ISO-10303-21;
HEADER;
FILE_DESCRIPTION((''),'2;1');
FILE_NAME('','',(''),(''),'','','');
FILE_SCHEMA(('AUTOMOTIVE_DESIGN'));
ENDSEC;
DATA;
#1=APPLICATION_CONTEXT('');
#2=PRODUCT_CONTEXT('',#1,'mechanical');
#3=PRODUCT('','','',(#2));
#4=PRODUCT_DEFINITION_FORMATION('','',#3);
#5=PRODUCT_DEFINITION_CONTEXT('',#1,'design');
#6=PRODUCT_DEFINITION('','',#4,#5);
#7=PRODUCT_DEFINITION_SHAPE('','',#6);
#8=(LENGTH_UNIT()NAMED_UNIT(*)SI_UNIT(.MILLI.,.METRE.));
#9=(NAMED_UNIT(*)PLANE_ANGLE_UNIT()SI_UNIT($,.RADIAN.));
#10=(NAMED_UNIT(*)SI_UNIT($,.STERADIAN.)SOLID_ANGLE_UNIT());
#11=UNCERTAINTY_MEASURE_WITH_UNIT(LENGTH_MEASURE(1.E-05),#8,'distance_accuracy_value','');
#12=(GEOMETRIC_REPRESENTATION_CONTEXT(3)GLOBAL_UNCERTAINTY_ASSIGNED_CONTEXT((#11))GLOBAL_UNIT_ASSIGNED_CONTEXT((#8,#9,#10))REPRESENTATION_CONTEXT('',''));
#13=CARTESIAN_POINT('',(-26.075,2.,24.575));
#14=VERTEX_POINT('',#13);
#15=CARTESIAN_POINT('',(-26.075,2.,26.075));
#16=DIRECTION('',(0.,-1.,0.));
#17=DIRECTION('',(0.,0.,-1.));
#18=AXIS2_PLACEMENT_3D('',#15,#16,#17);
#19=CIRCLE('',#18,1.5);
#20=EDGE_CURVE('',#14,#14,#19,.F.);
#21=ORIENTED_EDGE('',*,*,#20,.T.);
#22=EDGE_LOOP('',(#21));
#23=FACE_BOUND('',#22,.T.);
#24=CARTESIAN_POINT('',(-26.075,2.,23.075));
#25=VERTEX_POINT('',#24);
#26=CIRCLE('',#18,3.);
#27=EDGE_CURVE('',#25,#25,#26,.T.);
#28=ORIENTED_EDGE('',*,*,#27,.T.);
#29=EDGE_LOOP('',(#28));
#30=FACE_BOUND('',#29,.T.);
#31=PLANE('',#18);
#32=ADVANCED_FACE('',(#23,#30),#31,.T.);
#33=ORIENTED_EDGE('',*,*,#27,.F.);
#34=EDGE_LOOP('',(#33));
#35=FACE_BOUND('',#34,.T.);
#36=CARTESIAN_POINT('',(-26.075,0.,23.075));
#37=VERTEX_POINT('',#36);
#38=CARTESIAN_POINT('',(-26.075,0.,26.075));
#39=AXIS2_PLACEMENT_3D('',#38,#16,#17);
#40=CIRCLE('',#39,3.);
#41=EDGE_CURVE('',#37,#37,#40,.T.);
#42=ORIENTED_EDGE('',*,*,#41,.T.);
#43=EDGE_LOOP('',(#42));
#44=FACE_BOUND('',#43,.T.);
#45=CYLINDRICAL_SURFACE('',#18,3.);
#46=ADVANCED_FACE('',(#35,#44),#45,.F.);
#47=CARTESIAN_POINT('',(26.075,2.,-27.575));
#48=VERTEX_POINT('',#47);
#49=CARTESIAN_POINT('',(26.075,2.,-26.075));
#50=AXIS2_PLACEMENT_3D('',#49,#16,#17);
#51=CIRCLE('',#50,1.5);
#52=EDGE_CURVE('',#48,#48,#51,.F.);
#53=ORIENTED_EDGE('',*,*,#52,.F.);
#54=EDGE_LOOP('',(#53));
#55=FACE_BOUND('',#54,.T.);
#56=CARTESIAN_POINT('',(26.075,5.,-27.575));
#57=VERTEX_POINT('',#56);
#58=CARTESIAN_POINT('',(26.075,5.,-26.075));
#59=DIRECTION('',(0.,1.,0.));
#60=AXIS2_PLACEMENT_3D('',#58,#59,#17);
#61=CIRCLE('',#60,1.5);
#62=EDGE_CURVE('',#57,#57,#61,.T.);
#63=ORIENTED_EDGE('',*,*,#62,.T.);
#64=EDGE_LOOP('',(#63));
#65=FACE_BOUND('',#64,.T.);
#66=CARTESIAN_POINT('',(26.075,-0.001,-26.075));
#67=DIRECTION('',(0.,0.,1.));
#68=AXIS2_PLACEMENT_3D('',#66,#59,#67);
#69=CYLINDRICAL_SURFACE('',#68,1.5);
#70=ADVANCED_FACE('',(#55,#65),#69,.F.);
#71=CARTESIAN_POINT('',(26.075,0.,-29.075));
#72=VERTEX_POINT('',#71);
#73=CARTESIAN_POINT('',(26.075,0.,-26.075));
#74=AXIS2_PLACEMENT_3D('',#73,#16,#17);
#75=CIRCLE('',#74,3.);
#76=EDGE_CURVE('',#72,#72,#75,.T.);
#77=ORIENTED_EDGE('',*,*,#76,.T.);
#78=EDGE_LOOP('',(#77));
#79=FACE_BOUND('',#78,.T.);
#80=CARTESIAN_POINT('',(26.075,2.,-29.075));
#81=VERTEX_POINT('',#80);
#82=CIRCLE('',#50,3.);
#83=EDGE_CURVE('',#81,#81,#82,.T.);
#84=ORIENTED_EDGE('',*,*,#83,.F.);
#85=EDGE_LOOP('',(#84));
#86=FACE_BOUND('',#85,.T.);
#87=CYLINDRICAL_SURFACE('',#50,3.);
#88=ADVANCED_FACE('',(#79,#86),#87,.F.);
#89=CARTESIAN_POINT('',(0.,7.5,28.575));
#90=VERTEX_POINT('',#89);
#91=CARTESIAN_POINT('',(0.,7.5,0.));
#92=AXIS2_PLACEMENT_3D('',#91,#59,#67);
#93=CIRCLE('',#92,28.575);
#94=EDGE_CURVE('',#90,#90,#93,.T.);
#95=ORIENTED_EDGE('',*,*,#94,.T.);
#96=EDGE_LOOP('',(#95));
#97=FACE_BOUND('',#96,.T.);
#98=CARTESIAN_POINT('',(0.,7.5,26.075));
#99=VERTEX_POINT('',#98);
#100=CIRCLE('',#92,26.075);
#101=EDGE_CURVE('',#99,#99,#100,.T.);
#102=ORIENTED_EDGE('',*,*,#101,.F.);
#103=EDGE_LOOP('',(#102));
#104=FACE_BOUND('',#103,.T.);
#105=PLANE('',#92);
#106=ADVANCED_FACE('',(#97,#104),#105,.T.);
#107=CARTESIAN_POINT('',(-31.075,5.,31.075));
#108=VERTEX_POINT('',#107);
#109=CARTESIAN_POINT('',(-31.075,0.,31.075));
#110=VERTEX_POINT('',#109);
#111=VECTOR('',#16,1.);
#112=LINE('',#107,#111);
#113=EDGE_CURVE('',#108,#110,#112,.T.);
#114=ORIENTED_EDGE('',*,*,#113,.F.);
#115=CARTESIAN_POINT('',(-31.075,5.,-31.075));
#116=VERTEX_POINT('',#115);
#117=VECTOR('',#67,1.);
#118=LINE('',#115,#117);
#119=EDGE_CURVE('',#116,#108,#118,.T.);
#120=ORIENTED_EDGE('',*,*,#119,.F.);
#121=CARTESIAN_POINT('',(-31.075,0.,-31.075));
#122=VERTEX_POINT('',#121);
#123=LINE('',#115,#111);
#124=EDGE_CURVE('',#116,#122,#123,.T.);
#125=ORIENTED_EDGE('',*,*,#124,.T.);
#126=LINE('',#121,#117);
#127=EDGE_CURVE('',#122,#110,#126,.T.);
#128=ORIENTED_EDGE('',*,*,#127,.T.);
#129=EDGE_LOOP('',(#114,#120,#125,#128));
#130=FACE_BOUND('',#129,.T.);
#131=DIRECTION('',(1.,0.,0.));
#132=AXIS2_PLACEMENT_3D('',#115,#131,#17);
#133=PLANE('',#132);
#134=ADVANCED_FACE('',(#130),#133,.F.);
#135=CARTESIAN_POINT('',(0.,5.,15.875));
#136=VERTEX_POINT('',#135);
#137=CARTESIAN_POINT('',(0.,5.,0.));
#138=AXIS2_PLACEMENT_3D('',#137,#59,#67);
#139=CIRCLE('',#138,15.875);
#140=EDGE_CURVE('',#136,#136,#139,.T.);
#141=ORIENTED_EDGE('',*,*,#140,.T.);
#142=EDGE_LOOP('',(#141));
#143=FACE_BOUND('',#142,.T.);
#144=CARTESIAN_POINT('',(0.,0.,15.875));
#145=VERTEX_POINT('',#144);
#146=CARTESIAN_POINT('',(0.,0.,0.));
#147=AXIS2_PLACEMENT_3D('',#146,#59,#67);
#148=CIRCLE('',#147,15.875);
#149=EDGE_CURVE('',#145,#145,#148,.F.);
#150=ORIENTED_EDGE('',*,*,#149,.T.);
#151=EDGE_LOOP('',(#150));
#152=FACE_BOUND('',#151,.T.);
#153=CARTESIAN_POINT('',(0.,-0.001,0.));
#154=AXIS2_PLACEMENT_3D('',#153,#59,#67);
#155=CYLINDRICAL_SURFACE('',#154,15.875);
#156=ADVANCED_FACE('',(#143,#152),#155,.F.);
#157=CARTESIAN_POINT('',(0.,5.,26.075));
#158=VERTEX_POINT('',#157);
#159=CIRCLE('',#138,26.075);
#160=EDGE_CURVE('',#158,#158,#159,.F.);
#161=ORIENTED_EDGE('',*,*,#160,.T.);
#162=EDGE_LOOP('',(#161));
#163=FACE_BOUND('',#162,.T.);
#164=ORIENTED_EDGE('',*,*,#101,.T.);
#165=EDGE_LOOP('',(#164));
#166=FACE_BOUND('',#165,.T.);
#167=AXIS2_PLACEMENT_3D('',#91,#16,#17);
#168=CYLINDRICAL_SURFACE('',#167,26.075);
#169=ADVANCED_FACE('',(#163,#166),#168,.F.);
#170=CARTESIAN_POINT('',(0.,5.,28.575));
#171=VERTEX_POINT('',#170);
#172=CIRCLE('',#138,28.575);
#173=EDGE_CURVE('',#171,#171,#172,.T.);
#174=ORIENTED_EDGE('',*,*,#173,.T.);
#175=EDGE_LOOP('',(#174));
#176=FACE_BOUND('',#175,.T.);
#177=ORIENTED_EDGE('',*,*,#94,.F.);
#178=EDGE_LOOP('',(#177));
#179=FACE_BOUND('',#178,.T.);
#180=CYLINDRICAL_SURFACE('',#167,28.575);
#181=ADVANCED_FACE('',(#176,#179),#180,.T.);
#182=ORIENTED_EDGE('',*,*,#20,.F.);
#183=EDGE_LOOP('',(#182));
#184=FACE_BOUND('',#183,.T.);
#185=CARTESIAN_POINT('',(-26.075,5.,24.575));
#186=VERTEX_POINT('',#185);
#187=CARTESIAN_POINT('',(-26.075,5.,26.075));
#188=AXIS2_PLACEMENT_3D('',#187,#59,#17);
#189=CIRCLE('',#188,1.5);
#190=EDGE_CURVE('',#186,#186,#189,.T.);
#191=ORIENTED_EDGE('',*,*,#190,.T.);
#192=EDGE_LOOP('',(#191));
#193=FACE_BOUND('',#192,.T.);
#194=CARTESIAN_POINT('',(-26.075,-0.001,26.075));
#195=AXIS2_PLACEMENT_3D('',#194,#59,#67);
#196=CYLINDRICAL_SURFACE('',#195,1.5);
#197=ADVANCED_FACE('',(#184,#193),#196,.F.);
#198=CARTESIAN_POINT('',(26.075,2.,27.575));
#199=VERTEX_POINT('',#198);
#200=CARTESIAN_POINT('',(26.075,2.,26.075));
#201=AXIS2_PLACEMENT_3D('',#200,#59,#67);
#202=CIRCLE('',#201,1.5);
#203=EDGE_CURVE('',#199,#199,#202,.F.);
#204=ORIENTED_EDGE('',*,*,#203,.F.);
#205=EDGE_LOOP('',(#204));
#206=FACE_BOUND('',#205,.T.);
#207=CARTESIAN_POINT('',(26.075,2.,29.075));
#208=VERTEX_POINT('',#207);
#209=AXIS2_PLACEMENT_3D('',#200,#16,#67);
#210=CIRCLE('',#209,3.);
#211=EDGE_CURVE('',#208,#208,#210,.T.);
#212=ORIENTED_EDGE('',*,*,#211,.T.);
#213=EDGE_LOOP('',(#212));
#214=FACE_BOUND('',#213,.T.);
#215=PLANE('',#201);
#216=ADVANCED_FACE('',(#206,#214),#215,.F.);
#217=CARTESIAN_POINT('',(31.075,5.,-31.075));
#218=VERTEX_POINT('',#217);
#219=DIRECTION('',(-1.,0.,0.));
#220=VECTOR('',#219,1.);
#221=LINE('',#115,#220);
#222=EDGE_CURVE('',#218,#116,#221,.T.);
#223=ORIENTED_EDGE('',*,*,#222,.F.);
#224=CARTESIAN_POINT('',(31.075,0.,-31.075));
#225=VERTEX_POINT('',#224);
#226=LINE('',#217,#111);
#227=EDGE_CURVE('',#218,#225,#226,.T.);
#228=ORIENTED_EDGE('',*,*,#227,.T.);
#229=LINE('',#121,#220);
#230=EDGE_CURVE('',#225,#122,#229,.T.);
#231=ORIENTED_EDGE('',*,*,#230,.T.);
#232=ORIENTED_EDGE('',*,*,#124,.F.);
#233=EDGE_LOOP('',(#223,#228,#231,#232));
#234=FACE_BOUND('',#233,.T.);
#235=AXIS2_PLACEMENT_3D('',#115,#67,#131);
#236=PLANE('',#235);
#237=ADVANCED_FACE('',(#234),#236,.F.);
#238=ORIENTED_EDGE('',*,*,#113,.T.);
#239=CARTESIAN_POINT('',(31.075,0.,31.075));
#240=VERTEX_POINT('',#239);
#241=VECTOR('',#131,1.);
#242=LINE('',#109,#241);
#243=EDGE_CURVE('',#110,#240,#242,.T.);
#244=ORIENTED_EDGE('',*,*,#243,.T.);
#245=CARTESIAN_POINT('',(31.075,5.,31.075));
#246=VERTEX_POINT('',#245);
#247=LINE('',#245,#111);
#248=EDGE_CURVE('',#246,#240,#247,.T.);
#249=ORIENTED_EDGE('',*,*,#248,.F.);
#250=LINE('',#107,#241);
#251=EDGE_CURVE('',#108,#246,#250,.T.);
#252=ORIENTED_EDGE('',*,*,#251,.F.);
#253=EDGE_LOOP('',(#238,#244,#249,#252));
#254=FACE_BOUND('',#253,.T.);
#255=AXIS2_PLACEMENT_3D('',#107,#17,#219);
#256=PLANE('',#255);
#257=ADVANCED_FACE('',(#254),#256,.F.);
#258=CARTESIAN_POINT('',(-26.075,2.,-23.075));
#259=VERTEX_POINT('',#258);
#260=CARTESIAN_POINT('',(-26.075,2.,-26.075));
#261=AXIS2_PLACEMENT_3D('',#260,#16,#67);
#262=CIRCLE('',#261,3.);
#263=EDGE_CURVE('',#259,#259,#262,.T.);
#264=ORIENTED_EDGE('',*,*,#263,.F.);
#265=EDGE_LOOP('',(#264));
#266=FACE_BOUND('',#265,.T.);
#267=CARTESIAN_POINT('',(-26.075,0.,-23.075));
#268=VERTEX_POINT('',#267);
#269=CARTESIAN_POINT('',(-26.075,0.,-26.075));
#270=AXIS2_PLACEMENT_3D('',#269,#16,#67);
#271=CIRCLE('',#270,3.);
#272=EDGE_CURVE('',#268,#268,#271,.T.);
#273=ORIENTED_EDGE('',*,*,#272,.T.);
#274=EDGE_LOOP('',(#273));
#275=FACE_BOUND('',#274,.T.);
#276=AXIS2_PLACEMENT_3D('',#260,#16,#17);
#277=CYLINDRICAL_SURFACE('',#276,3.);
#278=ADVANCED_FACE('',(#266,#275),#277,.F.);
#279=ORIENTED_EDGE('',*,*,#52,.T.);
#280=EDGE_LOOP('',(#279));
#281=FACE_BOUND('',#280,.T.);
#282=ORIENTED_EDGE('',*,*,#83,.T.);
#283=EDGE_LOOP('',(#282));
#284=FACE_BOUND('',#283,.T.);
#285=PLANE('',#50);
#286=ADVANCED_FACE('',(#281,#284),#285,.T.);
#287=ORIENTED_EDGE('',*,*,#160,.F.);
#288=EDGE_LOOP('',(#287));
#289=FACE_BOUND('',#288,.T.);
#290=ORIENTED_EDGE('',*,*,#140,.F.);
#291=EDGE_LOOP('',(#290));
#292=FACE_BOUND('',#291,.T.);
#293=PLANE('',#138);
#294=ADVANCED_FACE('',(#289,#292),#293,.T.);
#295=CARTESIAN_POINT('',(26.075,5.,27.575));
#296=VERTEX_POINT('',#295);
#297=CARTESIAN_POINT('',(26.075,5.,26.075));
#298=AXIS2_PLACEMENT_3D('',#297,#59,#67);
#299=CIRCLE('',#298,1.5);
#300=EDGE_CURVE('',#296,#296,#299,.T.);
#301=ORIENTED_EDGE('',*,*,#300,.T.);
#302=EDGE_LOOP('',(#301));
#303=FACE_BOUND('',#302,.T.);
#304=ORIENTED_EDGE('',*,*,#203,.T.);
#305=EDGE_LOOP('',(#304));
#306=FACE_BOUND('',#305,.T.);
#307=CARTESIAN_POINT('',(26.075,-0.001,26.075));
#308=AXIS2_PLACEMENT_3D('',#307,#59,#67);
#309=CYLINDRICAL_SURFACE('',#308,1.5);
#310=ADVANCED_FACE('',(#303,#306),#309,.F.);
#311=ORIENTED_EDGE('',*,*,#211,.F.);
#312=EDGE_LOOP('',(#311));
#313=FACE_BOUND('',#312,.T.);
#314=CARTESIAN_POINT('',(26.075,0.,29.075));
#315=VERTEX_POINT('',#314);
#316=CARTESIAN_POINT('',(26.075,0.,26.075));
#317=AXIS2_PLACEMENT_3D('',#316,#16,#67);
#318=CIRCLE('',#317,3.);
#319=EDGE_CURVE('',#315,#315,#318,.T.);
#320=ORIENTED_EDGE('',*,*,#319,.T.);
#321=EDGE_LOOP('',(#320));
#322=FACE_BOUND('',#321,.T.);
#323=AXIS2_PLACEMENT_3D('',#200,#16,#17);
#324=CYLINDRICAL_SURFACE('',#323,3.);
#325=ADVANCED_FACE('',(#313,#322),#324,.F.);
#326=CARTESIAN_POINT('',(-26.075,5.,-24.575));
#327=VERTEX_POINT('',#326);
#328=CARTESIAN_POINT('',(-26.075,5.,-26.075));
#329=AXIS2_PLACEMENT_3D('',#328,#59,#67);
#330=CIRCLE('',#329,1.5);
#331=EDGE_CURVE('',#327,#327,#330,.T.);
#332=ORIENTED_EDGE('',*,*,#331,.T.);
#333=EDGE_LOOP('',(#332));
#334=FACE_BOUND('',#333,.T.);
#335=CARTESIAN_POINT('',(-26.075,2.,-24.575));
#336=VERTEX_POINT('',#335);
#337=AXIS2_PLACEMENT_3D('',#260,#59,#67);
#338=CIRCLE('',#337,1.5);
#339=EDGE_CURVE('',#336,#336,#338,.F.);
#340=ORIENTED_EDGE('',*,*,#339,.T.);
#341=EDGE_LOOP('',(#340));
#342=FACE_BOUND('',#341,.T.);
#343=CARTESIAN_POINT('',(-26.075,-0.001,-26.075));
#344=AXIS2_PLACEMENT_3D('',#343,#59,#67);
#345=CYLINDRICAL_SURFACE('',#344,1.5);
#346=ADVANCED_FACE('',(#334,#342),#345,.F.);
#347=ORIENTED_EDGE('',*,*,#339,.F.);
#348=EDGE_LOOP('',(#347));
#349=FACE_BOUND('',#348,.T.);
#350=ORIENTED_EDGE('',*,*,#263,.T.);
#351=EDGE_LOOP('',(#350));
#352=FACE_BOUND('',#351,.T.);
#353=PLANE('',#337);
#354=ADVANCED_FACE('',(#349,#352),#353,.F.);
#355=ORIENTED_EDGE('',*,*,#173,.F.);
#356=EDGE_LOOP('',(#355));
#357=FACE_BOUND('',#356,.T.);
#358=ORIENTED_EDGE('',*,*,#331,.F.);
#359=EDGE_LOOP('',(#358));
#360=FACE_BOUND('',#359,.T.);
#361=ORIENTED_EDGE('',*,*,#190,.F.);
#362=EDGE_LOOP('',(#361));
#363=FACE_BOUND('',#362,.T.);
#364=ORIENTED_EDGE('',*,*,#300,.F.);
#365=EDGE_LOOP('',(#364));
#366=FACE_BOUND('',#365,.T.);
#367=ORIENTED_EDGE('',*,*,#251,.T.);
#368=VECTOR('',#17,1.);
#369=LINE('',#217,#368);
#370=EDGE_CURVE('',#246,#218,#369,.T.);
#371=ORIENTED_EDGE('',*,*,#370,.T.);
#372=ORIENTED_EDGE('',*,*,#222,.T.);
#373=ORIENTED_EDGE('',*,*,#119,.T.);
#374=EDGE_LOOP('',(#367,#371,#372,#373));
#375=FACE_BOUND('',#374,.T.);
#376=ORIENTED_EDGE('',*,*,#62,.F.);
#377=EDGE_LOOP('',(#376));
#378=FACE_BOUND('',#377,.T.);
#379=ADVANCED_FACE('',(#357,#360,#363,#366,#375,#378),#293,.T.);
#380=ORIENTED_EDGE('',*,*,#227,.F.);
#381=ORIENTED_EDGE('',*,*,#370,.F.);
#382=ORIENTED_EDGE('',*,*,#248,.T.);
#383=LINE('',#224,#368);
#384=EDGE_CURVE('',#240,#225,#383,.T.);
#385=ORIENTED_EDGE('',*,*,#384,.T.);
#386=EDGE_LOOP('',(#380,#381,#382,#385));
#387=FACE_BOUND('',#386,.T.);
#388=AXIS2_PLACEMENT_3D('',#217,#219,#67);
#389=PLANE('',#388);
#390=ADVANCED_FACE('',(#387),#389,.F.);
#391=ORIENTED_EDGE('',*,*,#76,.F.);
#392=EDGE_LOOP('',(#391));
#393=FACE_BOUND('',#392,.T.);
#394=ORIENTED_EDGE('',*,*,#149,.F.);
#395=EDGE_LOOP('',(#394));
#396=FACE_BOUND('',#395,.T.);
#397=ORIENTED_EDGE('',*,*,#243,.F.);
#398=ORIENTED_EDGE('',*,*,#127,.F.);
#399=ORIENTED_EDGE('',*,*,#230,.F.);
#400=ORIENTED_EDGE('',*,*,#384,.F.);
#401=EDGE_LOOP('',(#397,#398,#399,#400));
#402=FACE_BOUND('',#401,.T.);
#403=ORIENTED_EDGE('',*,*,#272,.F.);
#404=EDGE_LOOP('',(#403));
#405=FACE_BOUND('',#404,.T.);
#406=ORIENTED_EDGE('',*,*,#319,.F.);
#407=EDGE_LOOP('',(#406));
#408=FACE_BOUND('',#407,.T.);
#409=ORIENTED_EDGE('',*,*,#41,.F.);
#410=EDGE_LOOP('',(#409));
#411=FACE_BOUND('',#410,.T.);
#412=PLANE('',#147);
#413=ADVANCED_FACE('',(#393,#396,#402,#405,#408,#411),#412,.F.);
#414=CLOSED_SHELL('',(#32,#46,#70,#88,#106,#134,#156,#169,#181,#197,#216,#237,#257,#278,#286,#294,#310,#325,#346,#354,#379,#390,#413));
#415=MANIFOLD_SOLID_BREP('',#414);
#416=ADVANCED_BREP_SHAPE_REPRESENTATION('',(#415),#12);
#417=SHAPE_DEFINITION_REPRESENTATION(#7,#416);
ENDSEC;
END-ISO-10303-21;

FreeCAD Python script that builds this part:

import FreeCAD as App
import Part
import Sketcher
Q = App.Units.Quantity

doc = App.newDocument("Part")
body = doc.addObject("PartDesign::Body", "Body")

# Sketch on XZ plane
sketch1 = doc.addObject("Sketcher::SketchObject", "Sketch")
body.addObject(sketch1)
sketch1.AttachmentSupport = (doc.XZ_Plane, [""])
sketch1.MapMode = "FlatFace"
sketch1.addGeometry([
    Part.LineSegment(App.Vector(-31.075, -31.075, 0), App.Vector(-31.075, 31.075, 0)),
    Part.LineSegment(App.Vector(-31.075, 31.075, 0), App.Vector(31.075, 31.075, 0)),
    Part.LineSegment(App.Vector(31.075, 31.075, 0), App.Vector(31.075, -31.075, 0)),
    Part.LineSegment(App.Vector(31.075, -31.075, 0), App.Vector(-31.075, -31.075, 0)),
], False)
sketch1.addConstraint([
    Sketcher.Constraint("Coincident", 0, 2, 1, 1),
    Sketcher.Constraint("Coincident", 1, 2, 2, 1),
    Sketcher.Constraint("Coincident", 2, 2, 3, 1),
    Sketcher.Constraint("Coincident", 3, 2, 0, 1),
    Sketcher.Constraint("Vertical", 0),
    Sketcher.Constraint("Horizontal", 1),
    Sketcher.Constraint("Vertical", 2),
    Sketcher.Constraint("Horizontal", 3),
    Sketcher.Constraint("Symmetric", 0, 2, 2, 2, -1, 1),
    Sketcher.Constraint("Equal", 3, 0),
    Sketcher.Constraint("DistanceX", 1, 1, 1, 2, Q("62.15 mm")),
])
pad1 = doc.addObject("PartDesign::Pad", "Pad")
body.addObject(pad1)
pad1.Profile = sketch1
pad1.Length = 5
pad1.Reversed = True

# Sketch on XZ plane
sketch2 = doc.addObject("Sketcher::SketchObject", "Sketch001")
body.addObject(sketch2)
sketch2.AttachmentSupport = (doc.XZ_Plane, [""])
sketch2.MapMode = "FlatFace"
sketch2.AttachmentOffset = App.Placement(App.Vector(0, 0, -5), App.Rotation())
sketch2.addGeometry(Part.Circle(App.Vector(-26.075, -26.075, 0), App.Vector(0, 0, 1), 1.5), False)
sketch2.addConstraint([
    Sketcher.Constraint("Diameter", 0, Q("3 mm")),
    Sketcher.Constraint("DistanceX", 0, 3, -1, 1, Q("26.075 mm")),
    Sketcher.Constraint("DistanceY", 0, 3, -1, 1, Q("26.075 mm")),
])
pocket1 = doc.addObject("PartDesign::Pocket", "Pocket")
body.addObject(pocket1)
pocket1.Profile = sketch2
pocket1.Type = "UpToFirst"
pocket1.Reversed = True

# Sketch on XZ plane
sketch3 = doc.addObject("Sketcher::SketchObject", "Sketch002")
body.addObject(sketch3)
sketch3.AttachmentSupport = (doc.XZ_Plane, [""])
sketch3.MapMode = "FlatFace"
sketch3.AttachmentOffset = App.Placement(App.Vector(0, 0, -5), App.Rotation())
sketch3.addGeometry(Part.Circle(App.Vector(-26.075, 26.075, 0), App.Vector(0, 0, 1), 1.5), False)
sketch3.addConstraint([
    Sketcher.Constraint("Diameter", 0, Q("3 mm")),
    Sketcher.Constraint("DistanceX", 0, 3, -1, 1, Q("26.075 mm")),
    Sketcher.Constraint("DistanceY", -1, 1, 0, 3, Q("26.075 mm")),
])
pocket2 = doc.addObject("PartDesign::Pocket", "Pocket001")
body.addObject(pocket2)
pocket2.Profile = sketch3
pocket2.Type = "UpToFirst"
pocket2.Reversed = True

# Sketch on XZ plane
sketch4 = doc.addObject("Sketcher::SketchObject", "Sketch003")
body.addObject(sketch4)
sketch4.AttachmentSupport = (doc.XZ_Plane, [""])
sketch4.MapMode = "FlatFace"
sketch4.AttachmentOffset = App.Placement(App.Vector(0, 0, -5), App.Rotation())
sketch4.addGeometry(Part.Circle(App.Vector(26.075, 26.075, 0), App.Vector(0, 0, 1), 1.5), False)
sketch4.addConstraint([
    Sketcher.Constraint("Diameter", 0, Q("3 mm")),
    Sketcher.Constraint("DistanceX", -1, 1, 0, 3, Q("26.075 mm")),
    Sketcher.Constraint("DistanceY", -1, 1, 0, 3, Q("26.075 mm")),
])
pocket3 = doc.addObject("PartDesign::Pocket", "Pocket002")
body.addObject(pocket3)
pocket3.Profile = sketch4
pocket3.Type = "UpToFirst"
pocket3.Reversed = True

# Sketch on XZ plane
sketch5 = doc.addObject("Sketcher::SketchObject", "Sketch004")
body.addObject(sketch5)
sketch5.AttachmentSupport = (doc.XZ_Plane, [""])
sketch5.MapMode = "FlatFace"
sketch5.AttachmentOffset = App.Placement(App.Vector(0, 0, -5), App.Rotation())
sketch5.addGeometry(Part.Circle(App.Vector(26.075, -26.075, 0), App.Vector(0, 0, 1), 1.5), False)
sketch5.addConstraint([
    Sketcher.Constraint("Diameter", 0, Q("3 mm")),
    Sketcher.Constraint("DistanceX", -1, 1, 0, 3, Q("26.075 mm")),
    Sketcher.Constraint("DistanceY", 0, 3, -1, 1, Q("26.075 mm")),
])
pocket4 = doc.addObject("PartDesign::Pocket", "Pocket003")
body.addObject(pocket4)
pocket4.Profile = sketch5
pocket4.Type = "UpToFirst"
pocket4.Reversed = True

# Sketch on XZ plane
sketch6 = doc.addObject("Sketcher::SketchObject", "Sketch005")
body.addObject(sketch6)
sketch6.AttachmentSupport = (doc.XZ_Plane, [""])
sketch6.MapMode = "FlatFace"
sketch6.AttachmentOffset = App.Placement(App.Vector(0, 0, -5), App.Rotation())
sketch6.addGeometry([
    Part.Circle(App.Vector(0, 0, 0), App.Vector(0, 0, 1), 28.575),
    Part.Circle(App.Vector(0, 0, 0), App.Vector(0, 0, 1), 26.075),
], False)
sketch6.addConstraint([
    Sketcher.Constraint("Coincident", 0, 3, -1, 1),
    Sketcher.Constraint("Coincident", 1, 3, -1, 1),
    Sketcher.Constraint("Diameter", 0, Q("57.15 mm")),
    Sketcher.Constraint("Diameter", 1, Q("52.15 mm")),
])
pad2 = doc.addObject("PartDesign::Pad", "Pad001")
body.addObject(pad2)
pad2.Profile = sketch6
pad2.Length = 2.5
pad2.Reversed = True

# Sketch on XZ plane
sketch7 = doc.addObject("Sketcher::SketchObject", "Sketch006")
body.addObject(sketch7)
sketch7.AttachmentSupport = (doc.XZ_Plane, [""])
sketch7.MapMode = "FlatFace"
sketch7.AttachmentOffset = App.Placement(App.Vector(0, 0, -5), App.Rotation())
sketch7.addGeometry(Part.Circle(App.Vector(0, 0, 0), App.Vector(0, 0, 1), 15.875), False)
sketch7.addConstraint([
    Sketcher.Constraint("Coincident", 0, 3, -1, 1),
    Sketcher.Constraint("Diameter", 0, Q("31.75 mm")),
])
pocket5 = doc.addObject("PartDesign::Pocket", "Pocket004")
body.addObject(pocket5)
pocket5.Profile = sketch7
pocket5.Type = "UpToFirst"
pocket5.Reversed = True

# Sketch on XZ plane
sketch8 = doc.addObject("Sketcher::SketchObject", "Sketch007")
body.addObject(sketch8)
sketch8.AttachmentSupport = (doc.XZ_Plane, [""])
sketch8.MapMode = "FlatFace"
sketch8.addGeometry([
    Part.Circle(App.Vector(-26.075, 26.075, 0), App.Vector(0, 0, 1), 3),
    Part.Circle(App.Vector(-26.075, -26.075, 0), App.Vector(0, 0, 1), 3),
    Part.Circle(App.Vector(26.075, -26.075, 0), App.Vector(0, 0, 1), 3),
    Part.Circle(App.Vector(26.075, 26.075, 0), App.Vector(0, 0, 1), 3),
], False)
sketch8.addConstraint([
    Sketcher.Constraint("Equal", 0, 1),
    Sketcher.Constraint("Equal", 1, 2),
    Sketcher.Constraint("Equal", 2, 3),
    Sketcher.Constraint("Symmetric", 0, 3, 2, 3, -1, 1),
    Sketcher.Constraint("Symmetric", 1, 3, 3, 3, -1, 1),
    Sketcher.Constraint("Symmetric", 1, 3, 2, 3, -2),
    Sketcher.Constraint("Diameter", 0, Q("6 mm")),
    Sketcher.Constraint("DistanceY", 1, 3, 0, 3, Q("52.15 mm")),
    Sketcher.Constraint("DistanceX", 1, 3, 2, 3, Q("52.15 mm")),
])
pocket6 = doc.addObject("PartDesign::Pocket", "Pocket005")
body.addObject(pocket6)
pocket6.Profile = sketch8
pocket6.Length = 2

doc.recompute()
